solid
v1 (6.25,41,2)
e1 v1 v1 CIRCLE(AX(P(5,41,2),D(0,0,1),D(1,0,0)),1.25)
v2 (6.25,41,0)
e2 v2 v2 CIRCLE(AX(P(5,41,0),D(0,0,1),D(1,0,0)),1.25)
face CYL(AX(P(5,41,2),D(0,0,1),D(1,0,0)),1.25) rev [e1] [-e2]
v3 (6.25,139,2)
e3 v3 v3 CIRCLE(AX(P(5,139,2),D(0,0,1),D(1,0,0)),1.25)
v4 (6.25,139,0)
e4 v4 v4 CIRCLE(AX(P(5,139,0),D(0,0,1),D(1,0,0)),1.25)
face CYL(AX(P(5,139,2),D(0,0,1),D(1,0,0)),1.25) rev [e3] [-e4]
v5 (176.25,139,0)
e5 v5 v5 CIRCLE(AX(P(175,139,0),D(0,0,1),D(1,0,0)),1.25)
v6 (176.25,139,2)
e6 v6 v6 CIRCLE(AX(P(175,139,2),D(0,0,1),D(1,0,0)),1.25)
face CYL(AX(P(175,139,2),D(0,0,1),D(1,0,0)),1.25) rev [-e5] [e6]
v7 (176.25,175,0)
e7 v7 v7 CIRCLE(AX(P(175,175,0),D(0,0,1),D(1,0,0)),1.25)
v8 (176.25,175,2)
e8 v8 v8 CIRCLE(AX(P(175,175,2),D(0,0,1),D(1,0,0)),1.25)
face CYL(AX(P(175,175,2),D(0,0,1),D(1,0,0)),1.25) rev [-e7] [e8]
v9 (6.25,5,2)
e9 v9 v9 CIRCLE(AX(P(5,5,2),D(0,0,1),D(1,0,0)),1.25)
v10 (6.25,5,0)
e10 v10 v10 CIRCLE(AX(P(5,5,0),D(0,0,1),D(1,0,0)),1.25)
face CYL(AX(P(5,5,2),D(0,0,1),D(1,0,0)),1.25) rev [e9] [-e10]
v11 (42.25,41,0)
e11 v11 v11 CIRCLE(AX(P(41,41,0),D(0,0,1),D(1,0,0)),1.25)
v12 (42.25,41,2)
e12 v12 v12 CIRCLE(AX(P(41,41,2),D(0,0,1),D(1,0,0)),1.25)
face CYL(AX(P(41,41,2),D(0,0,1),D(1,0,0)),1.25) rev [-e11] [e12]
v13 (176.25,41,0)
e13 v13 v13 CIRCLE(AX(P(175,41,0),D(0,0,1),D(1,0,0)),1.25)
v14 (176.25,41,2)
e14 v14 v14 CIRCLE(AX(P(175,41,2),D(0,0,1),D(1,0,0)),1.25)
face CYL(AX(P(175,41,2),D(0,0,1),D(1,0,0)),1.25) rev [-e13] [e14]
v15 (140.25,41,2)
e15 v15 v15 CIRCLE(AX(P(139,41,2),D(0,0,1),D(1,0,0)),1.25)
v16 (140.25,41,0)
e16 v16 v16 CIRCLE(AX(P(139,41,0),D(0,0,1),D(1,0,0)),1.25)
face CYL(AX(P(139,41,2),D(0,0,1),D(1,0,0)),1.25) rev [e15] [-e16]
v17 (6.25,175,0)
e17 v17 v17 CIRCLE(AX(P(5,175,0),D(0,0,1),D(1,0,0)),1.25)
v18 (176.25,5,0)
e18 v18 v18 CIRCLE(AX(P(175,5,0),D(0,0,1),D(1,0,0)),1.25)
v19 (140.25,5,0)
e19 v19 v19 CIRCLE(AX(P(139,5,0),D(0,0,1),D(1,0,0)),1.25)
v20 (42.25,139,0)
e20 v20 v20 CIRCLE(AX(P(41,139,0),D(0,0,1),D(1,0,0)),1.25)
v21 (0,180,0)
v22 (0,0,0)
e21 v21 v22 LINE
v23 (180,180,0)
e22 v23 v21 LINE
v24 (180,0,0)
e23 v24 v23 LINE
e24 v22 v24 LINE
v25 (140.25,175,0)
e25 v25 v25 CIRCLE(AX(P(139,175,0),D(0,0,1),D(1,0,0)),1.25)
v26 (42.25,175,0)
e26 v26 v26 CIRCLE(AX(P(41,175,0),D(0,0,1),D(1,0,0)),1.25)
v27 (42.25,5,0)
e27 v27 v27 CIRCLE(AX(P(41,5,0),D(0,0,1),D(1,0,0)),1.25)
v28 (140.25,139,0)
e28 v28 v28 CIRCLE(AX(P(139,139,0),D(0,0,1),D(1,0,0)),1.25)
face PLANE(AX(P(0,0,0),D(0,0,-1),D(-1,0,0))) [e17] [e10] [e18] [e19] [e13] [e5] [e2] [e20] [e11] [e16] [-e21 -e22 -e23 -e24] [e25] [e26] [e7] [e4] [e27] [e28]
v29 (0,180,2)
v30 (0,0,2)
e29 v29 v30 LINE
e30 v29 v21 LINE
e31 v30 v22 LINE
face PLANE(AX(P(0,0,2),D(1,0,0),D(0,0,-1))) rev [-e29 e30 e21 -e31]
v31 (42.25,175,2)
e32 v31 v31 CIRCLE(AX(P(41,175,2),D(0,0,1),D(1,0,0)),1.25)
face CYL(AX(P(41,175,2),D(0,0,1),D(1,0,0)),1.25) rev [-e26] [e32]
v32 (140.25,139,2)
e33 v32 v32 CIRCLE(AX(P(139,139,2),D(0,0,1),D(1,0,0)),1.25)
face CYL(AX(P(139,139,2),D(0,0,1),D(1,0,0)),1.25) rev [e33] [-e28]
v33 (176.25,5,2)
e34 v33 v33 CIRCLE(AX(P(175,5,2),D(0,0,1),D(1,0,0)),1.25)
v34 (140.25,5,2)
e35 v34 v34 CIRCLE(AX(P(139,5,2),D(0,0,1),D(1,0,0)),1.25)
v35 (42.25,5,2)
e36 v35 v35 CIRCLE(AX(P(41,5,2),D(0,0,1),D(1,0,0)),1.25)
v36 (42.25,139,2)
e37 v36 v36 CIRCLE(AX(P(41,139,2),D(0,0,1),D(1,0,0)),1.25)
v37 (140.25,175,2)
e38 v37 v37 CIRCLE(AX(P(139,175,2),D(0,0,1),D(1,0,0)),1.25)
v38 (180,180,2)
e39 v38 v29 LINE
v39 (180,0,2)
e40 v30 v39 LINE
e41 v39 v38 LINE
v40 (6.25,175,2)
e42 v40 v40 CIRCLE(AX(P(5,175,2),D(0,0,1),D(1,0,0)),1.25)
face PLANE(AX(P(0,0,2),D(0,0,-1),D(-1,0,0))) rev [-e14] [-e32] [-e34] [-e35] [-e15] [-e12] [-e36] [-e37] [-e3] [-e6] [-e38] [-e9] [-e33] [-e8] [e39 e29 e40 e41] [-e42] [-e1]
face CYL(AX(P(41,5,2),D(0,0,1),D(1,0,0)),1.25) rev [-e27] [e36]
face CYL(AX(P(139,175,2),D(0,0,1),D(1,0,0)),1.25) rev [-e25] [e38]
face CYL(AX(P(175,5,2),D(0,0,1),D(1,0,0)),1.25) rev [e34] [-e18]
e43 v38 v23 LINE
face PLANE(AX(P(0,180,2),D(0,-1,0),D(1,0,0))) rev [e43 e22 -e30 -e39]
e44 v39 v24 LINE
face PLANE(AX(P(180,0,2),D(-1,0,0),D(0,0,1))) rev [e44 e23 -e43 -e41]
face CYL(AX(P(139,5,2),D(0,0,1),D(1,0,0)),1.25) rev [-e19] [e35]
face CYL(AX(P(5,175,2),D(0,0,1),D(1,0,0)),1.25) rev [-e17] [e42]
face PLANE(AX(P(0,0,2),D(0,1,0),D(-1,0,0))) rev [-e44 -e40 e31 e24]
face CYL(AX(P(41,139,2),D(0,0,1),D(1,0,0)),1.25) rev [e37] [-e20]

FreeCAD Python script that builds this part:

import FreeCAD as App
import Part
import Sketcher

V = App.Vector


def add_polygon(sketch, points):
    """Adds a closed chain of lines whose ends are joined by coincident constraints."""
    first, n = sketch.GeometryCount, len(points)
    for a, b in zip(points, points[1:] + points[:1]):
        sketch.addGeometry(Part.LineSegment(App.Vector(*a, 0), App.Vector(*b, 0)), False)
    for i in range(n):
        sketch.addConstraint(Sketcher.Constraint("Coincident", first + i, 2, first + (i + 1) % n, 1))

doc = App.newDocument("Part")
body = doc.addObject("PartDesign::Body", "Body")

sketch1 = body.newObject("Sketcher::SketchObject", "Sketch")
sketch1.AttachmentSupport = (doc.getObject("XY_Plane"), [""])
sketch1.MapMode = "FlatFace"
add_polygon(sketch1, [(0, 180), (0, 0), (180, 0), (180, 180)])
sketch1.addConstraint([
    Sketcher.Constraint("Vertical", 0),
    Sketcher.Constraint("Horizontal", 1),
    Sketcher.Constraint("Vertical", 2),
    Sketcher.Constraint("Horizontal", 3),
    Sketcher.Constraint("Coincident", 0, 2, -1, 1),
    Sketcher.Constraint("Equal", 3, 0),
    Sketcher.Constraint("DistanceX", 1, 1, 1, 2, 180.0),
])
pad1 = body.newObject("PartDesign::Pad", "Pad")
pad1.Profile = sketch1
pad1.Length = 2

sketch2 = body.newObject("Sketcher::SketchObject", "Sketch001")
sketch2.AttachmentSupport = (doc.getObject("XY_Plane"), [""])
sketch2.MapMode = "FlatFace"
sketch2.AttachmentOffset = App.Placement(V(0, 0, 2), App.Rotation())
sketch2.addGeometry([
    Part.Circle(V(175, 5, 0), V(0, 0, 1), 1.2),
    Part.Circle(V(175, 41, 0), V(0, 0, 1), 1.2),
    Part.Circle(V(139, 41, 0), V(0, 0, 1), 1.2),
    Part.Circle(V(139, 5, 0), V(0, 0, 1), 1.2),
], False)
sketch2.addConstraint([
    Sketcher.Constraint("Equal", 0, 1),
    Sketcher.Constraint("Equal", 1, 2),
    Sketcher.Constraint("Equal", 2, 3),
    Sketcher.Constraint("Horizontal", 1, 3, 2, 3),
    Sketcher.Constraint("Horizontal", 0, 3, 3, 3),
    Sketcher.Constraint("Vertical", 0, 3, 1, 3),
    Sketcher.Constraint("Vertical", 2, 3, 3, 3),
    Sketcher.Constraint("Diameter", 0, 2.5),
    Sketcher.Constraint("DistanceX", -1, 1, 0, 3, 175.0),
    Sketcher.Constraint("DistanceY", -1, 1, 0, 3, 5.0),
    Sketcher.Constraint("DistanceY", -1, 1, 1, 3, 41.0),
    Sketcher.Constraint("DistanceX", -1, 1, 2, 3, 139.0),
])
doc.recompute()
hole = body.newObject("PartDesign::Hole", "Hole")
hole.Profile = sketch2
hole.ThreadType = "None"
hole.Diameter = 2.5
hole.DepthType = "ThroughAll"
doc.recompute()

datumplane = body.newObject("PartDesign::Plane", "DatumPlane")
datumplane.AttachmentSupport = (doc.getObject("XZ_Plane"), [""])
datumplane.MapMode = "FlatFace"
datumplane.AttachmentOffset = App.Placement(V(0, 0, -90), App.Rotation())
mirrored = body.newObject("PartDesign::Mirrored", "Mirrored")
mirrored.Originals = [hole]
mirrored.MirrorPlane = (datumplane, [""])
body.Tip = mirrored
doc.recompute()

datumplane2 = body.newObject("PartDesign::Plane", "DatumPlane001")
datumplane2.AttachmentSupport = (doc.getObject("YZ_Plane"), [""])
datumplane2.MapMode = "FlatFace"
datumplane2.AttachmentOffset = App.Placement(V(0, 0, 90), App.Rotation())
mirrored2 = body.newObject("PartDesign::Mirrored", "Mirrored001")
mirrored2.Originals = [hole]
mirrored2.MirrorPlane = (datumplane2, [""])
body.Tip = mirrored2

sketch3 = body.newObject("Sketcher::SketchObject", "Sketch002")
sketch3.AttachmentSupport = (doc.getObject("XY_Plane"), [""])
sketch3.MapMode = "FlatFace"
sketch3.AttachmentOffset = App.Placement(V(0, 0, 2), App.Rotation())
sketch3.addGeometry([
    Part.Circle(V(5, 175, 0), V(0, 0, 1), 1.2),
    Part.Circle(V(5, 139, 0), V(0, 0, 1), 1.2),
    Part.Circle(V(41, 139, 0), V(0, 0, 1), 1.2),
    Part.Circle(V(41, 175, 0), V(0, 0, 1), 1.2),
], False)
sketch3.addConstraint([
    Sketcher.Constraint("Equal", 0, 1),
    Sketcher.Constraint("Equal", 1, 2),
    Sketcher.Constraint("Equal", 2, 3),
    Sketcher.Constraint("Horizontal", 1, 3, 2, 3),
    Sketcher.Constraint("Horizontal", 0, 3, 3, 3),
    Sketcher.Constraint("Vertical", 0, 3, 1, 3),
    Sketcher.Constraint("Vertical", 2, 3, 3, 3),
    Sketcher.Constraint("Diameter", 0, 2.5),
    Sketcher.Constraint("DistanceX", -1, 1, 0, 3, 5.0),
    Sketcher.Constraint("DistanceY", -1, 1, 0, 3, 175.0),
    Sketcher.Constraint("DistanceY", -1, 1, 1, 3, 139.0),
    Sketcher.Constraint("DistanceX", -1, 1, 2, 3, 41.0),
])
doc.recompute()
hole2 = body.newObject("PartDesign::Hole", "Hole001")
hole2.Profile = sketch3
hole2.ThreadType = "None"
hole2.Diameter = 2.5
hole2.DepthType = "ThroughAll"

doc.recompute()
